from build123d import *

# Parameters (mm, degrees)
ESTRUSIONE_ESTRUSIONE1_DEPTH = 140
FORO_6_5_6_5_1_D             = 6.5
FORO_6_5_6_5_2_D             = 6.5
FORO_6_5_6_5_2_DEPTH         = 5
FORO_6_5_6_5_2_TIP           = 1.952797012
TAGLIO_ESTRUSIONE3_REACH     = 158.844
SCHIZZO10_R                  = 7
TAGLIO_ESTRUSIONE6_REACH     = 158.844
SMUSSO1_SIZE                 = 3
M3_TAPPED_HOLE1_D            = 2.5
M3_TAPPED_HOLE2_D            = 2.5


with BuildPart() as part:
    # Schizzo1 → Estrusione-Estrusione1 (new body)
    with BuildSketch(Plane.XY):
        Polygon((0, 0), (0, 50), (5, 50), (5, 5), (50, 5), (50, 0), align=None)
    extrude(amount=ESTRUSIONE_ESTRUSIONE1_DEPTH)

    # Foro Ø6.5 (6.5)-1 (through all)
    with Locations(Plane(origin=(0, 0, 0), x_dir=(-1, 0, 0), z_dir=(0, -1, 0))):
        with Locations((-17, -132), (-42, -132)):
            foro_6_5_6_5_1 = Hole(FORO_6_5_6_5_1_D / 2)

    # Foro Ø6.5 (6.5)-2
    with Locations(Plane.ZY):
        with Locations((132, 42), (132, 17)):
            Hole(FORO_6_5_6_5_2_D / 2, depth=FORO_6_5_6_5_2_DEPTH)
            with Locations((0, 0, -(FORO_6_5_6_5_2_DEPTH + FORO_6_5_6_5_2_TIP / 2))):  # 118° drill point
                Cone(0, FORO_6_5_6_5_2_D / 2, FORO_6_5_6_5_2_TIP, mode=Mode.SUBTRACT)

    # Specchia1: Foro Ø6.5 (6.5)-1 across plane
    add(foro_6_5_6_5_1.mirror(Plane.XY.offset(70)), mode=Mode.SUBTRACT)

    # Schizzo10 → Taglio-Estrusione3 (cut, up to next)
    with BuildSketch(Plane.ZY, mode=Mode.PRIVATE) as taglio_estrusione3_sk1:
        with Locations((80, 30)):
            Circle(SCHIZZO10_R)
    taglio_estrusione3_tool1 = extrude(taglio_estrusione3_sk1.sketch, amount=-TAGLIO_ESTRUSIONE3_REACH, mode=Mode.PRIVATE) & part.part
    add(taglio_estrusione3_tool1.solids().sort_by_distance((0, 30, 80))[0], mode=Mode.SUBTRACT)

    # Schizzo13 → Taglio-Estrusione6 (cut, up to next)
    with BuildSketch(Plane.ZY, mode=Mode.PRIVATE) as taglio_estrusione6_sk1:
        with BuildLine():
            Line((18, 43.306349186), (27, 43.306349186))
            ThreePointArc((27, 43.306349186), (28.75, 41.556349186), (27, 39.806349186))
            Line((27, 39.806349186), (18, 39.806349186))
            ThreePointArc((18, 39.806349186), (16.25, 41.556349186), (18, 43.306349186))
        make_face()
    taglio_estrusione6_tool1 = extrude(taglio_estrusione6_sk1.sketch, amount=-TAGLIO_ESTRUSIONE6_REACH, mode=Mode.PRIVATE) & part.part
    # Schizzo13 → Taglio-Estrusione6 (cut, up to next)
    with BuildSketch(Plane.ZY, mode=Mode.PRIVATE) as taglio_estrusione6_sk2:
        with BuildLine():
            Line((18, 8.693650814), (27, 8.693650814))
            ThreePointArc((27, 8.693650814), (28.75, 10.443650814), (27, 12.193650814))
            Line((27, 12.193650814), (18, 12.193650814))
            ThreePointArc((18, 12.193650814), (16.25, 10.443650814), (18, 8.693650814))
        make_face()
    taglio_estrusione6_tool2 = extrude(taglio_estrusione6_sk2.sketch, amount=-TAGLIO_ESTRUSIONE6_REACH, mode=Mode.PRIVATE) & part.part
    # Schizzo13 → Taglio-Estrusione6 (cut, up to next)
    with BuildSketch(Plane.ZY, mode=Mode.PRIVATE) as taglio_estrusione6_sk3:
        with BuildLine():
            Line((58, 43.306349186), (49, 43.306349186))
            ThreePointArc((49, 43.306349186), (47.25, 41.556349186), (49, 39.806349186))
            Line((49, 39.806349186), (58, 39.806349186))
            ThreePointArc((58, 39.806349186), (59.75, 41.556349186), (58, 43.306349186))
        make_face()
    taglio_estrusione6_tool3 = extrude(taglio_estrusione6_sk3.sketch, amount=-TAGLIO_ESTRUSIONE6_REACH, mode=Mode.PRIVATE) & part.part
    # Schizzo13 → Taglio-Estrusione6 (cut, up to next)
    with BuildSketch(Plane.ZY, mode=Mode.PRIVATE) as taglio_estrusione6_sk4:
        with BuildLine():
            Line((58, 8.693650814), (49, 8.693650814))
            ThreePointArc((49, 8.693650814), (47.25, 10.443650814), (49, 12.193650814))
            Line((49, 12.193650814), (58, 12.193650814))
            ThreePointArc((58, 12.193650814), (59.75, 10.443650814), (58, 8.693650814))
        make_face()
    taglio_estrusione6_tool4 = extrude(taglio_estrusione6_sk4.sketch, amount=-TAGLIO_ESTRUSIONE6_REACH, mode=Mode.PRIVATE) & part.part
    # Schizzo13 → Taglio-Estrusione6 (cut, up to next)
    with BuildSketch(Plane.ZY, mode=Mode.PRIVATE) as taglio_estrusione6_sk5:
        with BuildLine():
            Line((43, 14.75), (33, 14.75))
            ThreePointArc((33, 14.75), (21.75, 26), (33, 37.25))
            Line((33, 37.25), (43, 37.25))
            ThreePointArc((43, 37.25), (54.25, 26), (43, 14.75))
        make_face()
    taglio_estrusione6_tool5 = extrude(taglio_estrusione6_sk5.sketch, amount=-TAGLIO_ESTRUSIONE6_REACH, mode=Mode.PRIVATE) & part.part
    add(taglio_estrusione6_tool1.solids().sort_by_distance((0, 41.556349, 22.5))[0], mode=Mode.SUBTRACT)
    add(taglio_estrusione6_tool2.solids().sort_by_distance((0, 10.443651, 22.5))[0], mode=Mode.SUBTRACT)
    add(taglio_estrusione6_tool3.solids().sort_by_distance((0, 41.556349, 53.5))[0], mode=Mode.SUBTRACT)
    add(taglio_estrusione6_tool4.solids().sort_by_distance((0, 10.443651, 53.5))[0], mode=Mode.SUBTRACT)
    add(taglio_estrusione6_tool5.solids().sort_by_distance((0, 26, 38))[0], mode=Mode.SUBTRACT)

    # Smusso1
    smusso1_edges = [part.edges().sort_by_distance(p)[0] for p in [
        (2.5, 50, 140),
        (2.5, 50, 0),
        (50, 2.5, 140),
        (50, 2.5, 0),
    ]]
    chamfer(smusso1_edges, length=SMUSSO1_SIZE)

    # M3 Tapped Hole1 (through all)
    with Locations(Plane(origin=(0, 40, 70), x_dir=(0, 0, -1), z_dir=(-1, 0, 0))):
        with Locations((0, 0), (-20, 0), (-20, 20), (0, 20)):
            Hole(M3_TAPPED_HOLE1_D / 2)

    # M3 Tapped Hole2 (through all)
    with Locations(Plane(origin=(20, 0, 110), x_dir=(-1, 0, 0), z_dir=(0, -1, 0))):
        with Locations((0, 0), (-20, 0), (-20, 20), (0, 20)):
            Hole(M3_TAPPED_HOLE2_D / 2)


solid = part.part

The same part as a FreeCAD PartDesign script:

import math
import FreeCAD as App
import Part
import Sketcher

V = App.Vector


def edges_at(feature, points):
    """Names of the edges that pass closest to the given points."""
    edges = feature.Shape.Edges
    near = lambda p: min(range(len(edges)), key=lambda i: edges[i].distToShape(Part.Vertex(*p))[0])
    return sorted({f"Edge{near(p) + 1}" for p in points})

doc = App.newDocument("Part")
body = doc.addObject("PartDesign::Body", "Body")

# Sketch on XY plane
sketch1 = body.newObject("Sketcher::SketchObject", "Sketch")
sketch1.AttachmentSupport = (doc.getObject("XY_Plane"), [""])
sketch1.MapMode = "FlatFace"
sketch1.addGeometry(Part.LineSegment(V(0, 50, 0), V(0, 0, 0)), False)
sketch1.addGeometry(Part.LineSegment(V(0, 0, 0), V(50, 0, 0)), False)
sketch1.addGeometry(Part.LineSegment(V(50, 0, 0), V(50, 5, 0)), False)
sketch1.addGeometry(Part.LineSegment(V(50, 5, 0), V(5, 5, 0)), False)
sketch1.addGeometry(Part.LineSegment(V(5, 5, 0), V(5, 50, 0)), False)
sketch1.addGeometry(Part.LineSegment(V(5, 50, 0), V(0, 50, 0)), False)
sketch1.addConstraint(Sketcher.Constraint("Coincident", 0, 2, 1, 1))
sketch1.addConstraint(Sketcher.Constraint("Coincident", 1, 2, 2, 1))
sketch1.addConstraint(Sketcher.Constraint("Coincident", 2, 2, 3, 1))
sketch1.addConstraint(Sketcher.Constraint("Coincident", 3, 2, 4, 1))
sketch1.addConstraint(Sketcher.Constraint("Coincident", 4, 2, 5, 1))
sketch1.addConstraint(Sketcher.Constraint("Coincident", 5, 2, 0, 1))
sketch1.addConstraint(Sketcher.Constraint("Vertical", 0))
sketch1.addConstraint(Sketcher.Constraint("Horizontal", 1))
sketch1.addConstraint(Sketcher.Constraint("Vertical", 2))
sketch1.addConstraint(Sketcher.Constraint("Horizontal", 3))
sketch1.addConstraint(Sketcher.Constraint("Vertical", 4))
sketch1.addConstraint(Sketcher.Constraint("Horizontal", 5))
sketch1.addConstraint(Sketcher.Constraint("Coincident", 0, 2, -1, 1))
sketch1.addConstraint(Sketcher.Constraint("Equal", 1, 0))
sketch1.addConstraint(Sketcher.Constraint("Equal", 5, 2))
sketch1.addConstraint(Sketcher.Constraint("DistanceX", 1, 1, 1, 2, 50.0))
sketch1.addConstraint(Sketcher.Constraint("DistanceX", 3, 2, 3, 1, 45.0))
pad1 = body.newObject("PartDesign::Pad", "Pad")
pad1.Profile = sketch1
pad1.Length = 140

# Sketch on XZ plane
sketch2 = body.newObject("Sketcher::SketchObject", "Sketch001")
sketch2.AttachmentSupport = (doc.getObject("XZ_Plane"), [""])
sketch2.MapMode = "FlatFace"
sketch2.addGeometry(Part.Circle(V(17, 132, 0), V(0, 0, 1), 3.2), False)
sketch2.addGeometry(Part.Circle(V(42, 132, 0), V(0, 0, 1), 3.2), False)
sketch2.addConstraint(Sketcher.Constraint("Equal", 0, 1))
sketch2.addConstraint(Sketcher.Constraint("Horizontal", 0, 3, 1, 3))
sketch2.addConstraint(Sketcher.Constraint("Diameter", 0, 6.5))
sketch2.addConstraint(Sketcher.Constraint("DistanceX", -1, 1, 0, 3, 17.0))
sketch2.addConstraint(Sketcher.Constraint("DistanceY", -1, 1, 0, 3, 132.0))
sketch2.addConstraint(Sketcher.Constraint("DistanceX", -1, 1, 1, 3, 42.0))
doc.recompute()
hole = body.newObject("PartDesign::Hole", "Hole")
hole.Profile = sketch2
hole.ThreadType = "None"
hole.Diameter = 6.5
hole.DepthType = "ThroughAll"

# Sketch on YZ plane
sketch3 = body.newObject("Sketcher::SketchObject", "Sketch002")
sketch3.AttachmentSupport = (doc.getObject("YZ_Plane"), [""])
sketch3.MapMode = "FlatFace"
sketch3.addGeometry(Part.Circle(V(42, 132, 0), V(0, 0, 1), 3.2), False)
sketch3.addGeometry(Part.Circle(V(17, 132, 0), V(0, 0, 1), 3.2), False)
sketch3.addConstraint(Sketcher.Constraint("Equal", 0, 1))
sketch3.addConstraint(Sketcher.Constraint("Horizontal", 0, 3, 1, 3))
sketch3.addConstraint(Sketcher.Constraint("Diameter", 0, 6.5))
sketch3.addConstraint(Sketcher.Constraint("DistanceX", -1, 1, 0, 3, 42.0))
sketch3.addConstraint(Sketcher.Constraint("DistanceY", -1, 1, 0, 3, 132.0))
sketch3.addConstraint(Sketcher.Constraint("DistanceX", -1, 1, 1, 3, 17.0))
doc.recompute()
hole2 = body.newObject("PartDesign::Hole", "Hole001")
hole2.Profile = sketch3
hole2.ThreadType = "None"
hole2.Diameter = 6.5
hole2.DepthType = "Dimension"
hole2.Depth = 5
hole2.DrillPoint = "Angled"
hole2.DrillPointAngle = 118
hole2.Reversed = True
doc.recompute()

datumplane = body.newObject("PartDesign::Plane", "DatumPlane")
datumplane.AttachmentSupport = (doc.getObject("XY_Plane"), [""])
datumplane.MapMode = "FlatFace"
datumplane.AttachmentOffset = App.Placement(V(0, 0, 70), App.Rotation())
mirrored = body.newObject("PartDesign::Mirrored", "Mirrored")
mirrored.Originals = [hole]
mirrored.MirrorPlane = (datumplane, [""])
body.Tip = mirrored

# Sketch on YZ plane
sketch4 = body.newObject("Sketcher::SketchObject", "Sketch003")
sketch4.AttachmentSupport = (doc.getObject("YZ_Plane"), [""])
sketch4.MapMode = "FlatFace"
sketch4.addGeometry(Part.Circle(V(30, 80, 0), V(0, 0, 1), 7), False)
sketch4.addConstraint(Sketcher.Constraint("Diameter", 0, 14.0))
sketch4.addConstraint(Sketcher.Constraint("DistanceX", -1, 1, 0, 3, 30.0))
sketch4.addConstraint(Sketcher.Constraint("DistanceY", -1, 1, 0, 3, 80.0))
pocket1 = body.newObject("PartDesign::Pocket", "Pocket")
pocket1.Profile = sketch4
pocket1.Type = "UpToFirst"
pocket1.Reversed = True

# Sketch on YZ plane
sketch5 = body.newObject("Sketcher::SketchObject", "Sketch004")
sketch5.AttachmentSupport = (doc.getObject("YZ_Plane"), [""])
sketch5.MapMode = "FlatFace"
sketch5.addGeometry(Part.LineSegment(V(43.3, 27, 0), V(43.3, 18, 0)), False)
sketch5.addGeometry(Part.ArcOfCircle(Part.Circle(V(41.6, 18, 0), V(0, 0, 1), 1.8), math.radians(180), math.radians(360)), False)
sketch5.addGeometry(Part.LineSegment(V(39.8, 18, 0), V(39.8, 27, 0)), False)
sketch5.addGeometry(Part.ArcOfCircle(Part.Circle(V(41.6, 27, 0), V(0, 0, 1), 1.8), math.radians(0), math.radians(180)), False)
sketch5.addConstraint(Sketcher.Constraint("Tangent", 0, 2, 1, 2))
sketch5.addConstraint(Sketcher.Constraint("Tangent", 1, 1, 2, 1))
sketch5.addConstraint(Sketcher.Constraint("Tangent", 2, 2, 3, 2))
sketch5.addConstraint(Sketcher.Constraint("Tangent", 3, 1, 0, 1))
sketch5.addConstraint(Sketcher.Constraint("Vertical", 0))
sketch5.addConstraint(Sketcher.Constraint("Vertical", 2))
sketch5.addConstraint(Sketcher.Constraint("DistanceY", 0, 2, 0, 1, 9.0))
sketch5.addConstraint(Sketcher.Constraint("Radius", 1, 1.75))
sketch5.addConstraint(Sketcher.Constraint("DistanceY", -1, 1, 1, 3, 18.0))
sketch5.addConstraint(Sketcher.Constraint("DistanceX", -1, 1, 1, 3, 41.556349))
pocket2 = body.newObject("PartDesign::Pocket", "Pocket001")
pocket2.Profile = sketch5
pocket2.Type = "UpToFirst"
pocket2.Reversed = True

# Sketch on YZ plane
sketch6 = body.newObject("Sketcher::SketchObject", "Sketch005")
sketch6.AttachmentSupport = (doc.getObject("YZ_Plane"), [""])
sketch6.MapMode = "FlatFace"
sketch6.addGeometry(Part.LineSegment(V(8.7, 18, 0), V(8.7, 27, 0)), False)
sketch6.addGeometry(Part.ArcOfCircle(Part.Circle(V(10.4, 27, 0), V(0, 0, 1), 1.8), math.radians(0), math.radians(180)), False)
sketch6.addGeometry(Part.LineSegment(V(12.2, 27, 0), V(12.2, 18, 0)), False)
sketch6.addGeometry(Part.ArcOfCircle(Part.Circle(V(10.4, 18, 0), V(0, 0, 1), 1.8), math.radians(180), math.radians(360)), False)
sketch6.addConstraint(Sketcher.Constraint("Tangent", 0, 2, 1, 2))
sketch6.addConstraint(Sketcher.Constraint("Tangent", 1, 1, 2, 1))
sketch6.addConstraint(Sketcher.Constraint("Tangent", 2, 2, 3, 2))
sketch6.addConstraint(Sketcher.Constraint("Tangent", 3, 1, 0, 1))
sketch6.addConstraint(Sketcher.Constraint("Vertical", 0))
sketch6.addConstraint(Sketcher.Constraint("Vertical", 2))
sketch6.addConstraint(Sketcher.Constraint("DistanceY", 0, 1, 0, 2, 9.0))
sketch6.addConstraint(Sketcher.Constraint("Radius", 1, 1.75))
sketch6.addConstraint(Sketcher.Constraint("DistanceY", -1, 1, 1, 3, 27.0))
sketch6.addConstraint(Sketcher.Constraint("DistanceX", -1, 1, 1, 3, 10.443651))
pocket3 = body.newObject("PartDesign::Pocket", "Pocket002")
pocket3.Profile = sketch6
pocket3.Type = "UpToFirst"
pocket3.Reversed = True

# Sketch on YZ plane
sketch7 = body.newObject("Sketcher::SketchObject", "Sketch006")
sketch7.AttachmentSupport = (doc.getObject("YZ_Plane"), [""])
sketch7.MapMode = "FlatFace"
sketch7.addGeometry(Part.LineSegment(V(43.3, 58, 0), V(43.3, 49, 0)), False)
sketch7.addGeometry(Part.ArcOfCircle(Part.Circle(V(41.6, 49, 0), V(0, 0, 1), 1.8), math.radians(180), math.radians(360)), False)
sketch7.addGeometry(Part.LineSegment(V(39.8, 49, 0), V(39.8, 58, 0)), False)
sketch7.addGeometry(Part.ArcOfCircle(Part.Circle(V(41.6, 58, 0), V(0, 0, 1), 1.8), math.radians(0), math.radians(180)), False)
sketch7.addConstraint(Sketcher.Constraint("Tangent", 0, 2, 1, 2))
sketch7.addConstraint(Sketcher.Constraint("Tangent", 1, 1, 2, 1))
sketch7.addConstraint(Sketcher.Constraint("Tangent", 2, 2, 3, 2))
sketch7.addConstraint(Sketcher.Constraint("Tangent", 3, 1, 0, 1))
sketch7.addConstraint(Sketcher.Constraint("Vertical", 0))
sketch7.addConstraint(Sketcher.Constraint("Vertical", 2))
sketch7.addConstraint(Sketcher.Constraint("DistanceY", 0, 2, 0, 1, 9.0))
sketch7.addConstraint(Sketcher.Constraint("Radius", 1, 1.75))
sketch7.addConstraint(Sketcher.Constraint("DistanceY", -1, 1, 1, 3, 49.0))
sketch7.addConstraint(Sketcher.Constraint("DistanceX", -1, 1, 1, 3, 41.556349))
pocket4 = body.newObject("PartDesign::Pocket", "Pocket003")
pocket4.Profile = sketch7
pocket4.Type = "UpToFirst"
pocket4.Reversed = True

# Sketch on YZ plane
sketch8 = body.newObject("Sketcher::SketchObject", "Sketch007")
sketch8.AttachmentSupport = (doc.getObject("YZ_Plane"), [""])
sketch8.MapMode = "FlatFace"
sketch8.addGeometry(Part.LineSegment(V(8.7, 49, 0), V(8.7, 58, 0)), False)
sketch8.addGeometry(Part.ArcOfCircle(Part.Circle(V(10.4, 58, 0), V(0, 0, 1), 1.8), math.radians(0), math.radians(180)), False)
sketch8.addGeometry(Part.LineSegment(V(12.2, 58, 0), V(12.2, 49, 0)), False)
sketch8.addGeometry(Part.ArcOfCircle(Part.Circle(V(10.4, 49, 0), V(0, 0, 1), 1.8), math.radians(180), math.radians(360)), False)
sketch8.addConstraint(Sketcher.Constraint("Tangent", 0, 2, 1, 2))
sketch8.addConstraint(Sketcher.Constraint("Tangent", 1, 1, 2, 1))
sketch8.addConstraint(Sketcher.Constraint("Tangent", 2, 2, 3, 2))
sketch8.addConstraint(Sketcher.Constraint("Tangent", 3, 1, 0, 1))
sketch8.addConstraint(Sketcher.Constraint("Vertical", 0))
sketch8.addConstraint(Sketcher.Constraint("Vertical", 2))
sketch8.addConstraint(Sketcher.Constraint("DistanceY", 0, 1, 0, 2, 9.0))
sketch8.addConstraint(Sketcher.Constraint("Radius", 1, 1.75))
sketch8.addConstraint(Sketcher.Constraint("DistanceY", -1, 1, 1, 3, 58.0))
sketch8.addConstraint(Sketcher.Constraint("DistanceX", -1, 1, 1, 3, 10.443651))
pocket5 = body.newObject("PartDesign::Pocket", "Pocket004")
pocket5.Profile = sketch8
pocket5.Type = "UpToFirst"
pocket5.Reversed = True

# Sketch on YZ plane
sketch9 = body.newObject("Sketcher::SketchObject", "Sketch008")
sketch9.AttachmentSupport = (doc.getObject("YZ_Plane"), [""])
sketch9.MapMode = "FlatFace"
sketch9.addGeometry(Part.LineSegment(V(15, 33, 0), V(15, 43, 0)), False)
sketch9.addGeometry(Part.ArcOfCircle(Part.Circle(V(26, 43, 0), V(0, 0, 1), 11), math.radians(0), math.radians(180)), False)
sketch9.addGeometry(Part.LineSegment(V(37, 43, 0), V(37, 33, 0)), False)
sketch9.addGeometry(Part.ArcOfCircle(Part.Circle(V(26, 33, 0), V(0, 0, 1), 11), math.radians(180), math.radians(360)), False)
sketch9.addConstraint(Sketcher.Constraint("Tangent", 0, 2, 1, 2))
sketch9.addConstraint(Sketcher.Constraint("Tangent", 1, 1, 2, 1))
sketch9.addConstraint(Sketcher.Constraint("Tangent", 2, 2, 3, 2))
sketch9.addConstraint(Sketcher.Constraint("Tangent", 3, 1, 0, 1))
sketch9.addConstraint(Sketcher.Constraint("Vertical", 0))
sketch9.addConstraint(Sketcher.Constraint("Vertical", 2))
sketch9.addConstraint(Sketcher.Constraint("DistanceY", 0, 1, 0, 2, 10.0))
sketch9.addConstraint(Sketcher.Constraint("Radius", 1, 11.25))
sketch9.addConstraint(Sketcher.Constraint("DistanceX", -1, 1, 1, 3, 26.0))
sketch9.addConstraint(Sketcher.Constraint("DistanceY", -1, 1, 1, 3, 43.0))
pocket6 = body.newObject("PartDesign::Pocket", "Pocket005")
pocket6.Profile = sketch9
pocket6.Type = "UpToFirst"
pocket6.Reversed = True
doc.recompute()

chamfer = body.newObject("PartDesign::Chamfer", "Chamfer")
chamfer.Base = (pocket6, edges_at(pocket6, [
    (2.5, 50, 140),
    (2.5, 50, 0),
    (50, 2.5, 140),
    (50, 2.5, 0),
]))
chamfer.Size = 3

# Sketch on YZ plane
sketch10 = body.newObject("Sketcher::SketchObject", "Sketch009")
sketch10.AttachmentSupport = (doc.getObject("YZ_Plane"), [""])
sketch10.MapMode = "FlatFace"
sketch10.addGeometry(Part.Circle(V(40, 70, 0), V(0, 0, 1), 1.2), False)
sketch10.addGeometry(Part.Circle(V(40, 90, 0), V(0, 0, 1), 1.2), False)
sketch10.addGeometry(Part.Circle(V(20, 90, 0), V(0, 0, 1), 1.2), False)
sketch10.addGeometry(Part.Circle(V(20, 70, 0), V(0, 0, 1), 1.2), False)
sketch10.addConstraint(Sketcher.Constraint("Equal", 0, 1))
sketch10.addConstraint(Sketcher.Constraint("Equal", 1, 2))
sketch10.addConstraint(Sketcher.Constraint("Equal", 2, 3))
sketch10.addConstraint(Sketcher.Constraint("Horizontal", 1, 3, 2, 3))
sketch10.addConstraint(Sketcher.Constraint("Horizontal", 0, 3, 3, 3))
sketch10.addConstraint(Sketcher.Constraint("Vertical", 0, 3, 1, 3))
sketch10.addConstraint(Sketcher.Constraint("Vertical", 2, 3, 3, 3))
sketch10.addConstraint(Sketcher.Constraint("Diameter", 0, 2.5))
sketch10.addConstraint(Sketcher.Constraint("DistanceX", -1, 1, 0, 3, 40.0))
sketch10.addConstraint(Sketcher.Constraint("DistanceY", -1, 1, 0, 3, 70.0))
sketch10.addConstraint(Sketcher.Constraint("DistanceY", -1, 1, 1, 3, 90.0))
sketch10.addConstraint(Sketcher.Constraint("DistanceX", -1, 1, 2, 3, 20.0))
doc.recompute()
hole3 = body.newObject("PartDesign::Hole", "Hole002")
hole3.Profile = sketch10
hole3.ThreadType = "None"
hole3.Diameter = 2.5
hole3.DepthType = "ThroughAll"
hole3.Reversed = True

# Sketch on XZ plane
sketch11 = body.newObject("Sketcher::SketchObject", "Sketch010")
sketch11.AttachmentSupport = (doc.getObject("XZ_Plane"), [""])
sketch11.MapMode = "FlatFace"
sketch11.addGeometry(Part.Circle(V(20, 110, 0), V(0, 0, 1), 1.2), False)
sketch11.addGeometry(Part.Circle(V(40, 110, 0), V(0, 0, 1), 1.2), False)
sketch11.addGeometry(Part.Circle(V(40, 90, 0), V(0, 0, 1), 1.2), False)
sketch11.addGeometry(Part.Circle(V(20, 90, 0), V(0, 0, 1), 1.2), False)
sketch11.addConstraint(Sketcher.Constraint("Equal", 0, 1))
sketch11.addConstraint(Sketcher.Constraint("Equal", 1, 2))
sketch11.addConstraint(Sketcher.Constraint("Equal", 2, 3))
sketch11.addConstraint(Sketcher.Constraint("Horizontal", 0, 3, 1, 3))
sketch11.addConstraint(Sketcher.Constraint("Horizontal", 2, 3, 3, 3))
sketch11.addConstraint(Sketcher.Constraint("Vertical", 1, 3, 2, 3))
sketch11.addConstraint(Sketcher.Constraint("Vertical", 0, 3, 3, 3))
sketch11.addConstraint(Sketcher.Constraint("Diameter", 0, 2.5))
sketch11.addConstraint(Sketcher.Constraint("DistanceX", -1, 1, 0, 3, 20.0))
sketch11.addConstraint(Sketcher.Constraint("DistanceY", -1, 1, 0, 3, 110.0))
sketch11.addConstraint(Sketcher.Constraint("DistanceX", -1, 1, 1, 3, 40.0))
sketch11.addConstraint(Sketcher.Constraint("DistanceY", -1, 1, 2, 3, 90.0))
doc.recompute()
hole4 = body.newObject("PartDesign::Hole", "Hole003")
hole4.Profile = sketch11
hole4.ThreadType = "None"
hole4.Diameter = 2.5
hole4.DepthType = "ThroughAll"

doc.recompute()
